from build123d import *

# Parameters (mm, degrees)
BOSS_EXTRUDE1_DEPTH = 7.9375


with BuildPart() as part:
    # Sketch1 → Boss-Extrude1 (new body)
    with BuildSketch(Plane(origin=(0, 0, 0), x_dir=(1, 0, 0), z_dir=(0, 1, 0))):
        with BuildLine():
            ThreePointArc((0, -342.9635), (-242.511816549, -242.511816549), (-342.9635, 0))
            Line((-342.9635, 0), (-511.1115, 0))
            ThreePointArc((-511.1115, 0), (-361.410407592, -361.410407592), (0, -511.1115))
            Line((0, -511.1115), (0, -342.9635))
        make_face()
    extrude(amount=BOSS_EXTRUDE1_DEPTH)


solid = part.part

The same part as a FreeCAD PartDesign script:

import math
import FreeCAD as App
import Part
import Sketcher

V = App.Vector
Q = App.Units.Quantity

doc = App.newDocument("Part")
body = doc.addObject("PartDesign::Body", "Body")

# Sketch on XZ plane
sketch1 = body.newObject("Sketcher::SketchObject", "Sketch")
sketch1.AttachmentSupport = (doc.getObject("XZ_Plane"), [""])
sketch1.MapMode = "FlatFace"
sketch1.addGeometry([
    Part.ArcOfCircle(Part.Circle(V(0, 0, 0), V(0, 0, 1), 343), math.radians(90), math.radians(180)),
    Part.LineSegment(V(-343, 0, 0), V(-511, 0, 0)),
    Part.ArcOfCircle(Part.Circle(V(0, 0, 0), V(0, 0, 1), 511), math.radians(90), math.radians(180)),
    Part.LineSegment(V(0, 511, 0), V(0, 343, 0)),
], False)
sketch1.addConstraint([
    Sketcher.Constraint("Coincident", 0, 2, 1, 1),
    Sketcher.Constraint("Coincident", 1, 2, 2, 2),
    Sketcher.Constraint("Coincident", 2, 1, 3, 1),
    Sketcher.Constraint("Coincident", 3, 2, 0, 1),
    Sketcher.Constraint("Horizontal", 1),
    Sketcher.Constraint("Vertical", 3),
    Sketcher.Constraint("Coincident", 0, 3, -1, 1),
    Sketcher.Constraint("Coincident", 2, 3, -1, 1),
    Sketcher.Constraint("PointOnObject", 0, 2, -1),
    Sketcher.Constraint("PointOnObject", 3, 2, -2),
    Sketcher.Constraint("DistanceX", 1, 2, 1, 1, Q("6.62 in")),
    Sketcher.Constraint("Radius", 0, Q("13.5025 in")),
])
pad1 = body.newObject("PartDesign::Pad", "Pad")
pad1.Profile = sketch1
pad1.Length = Q("0.3125 in")
pad1.Reversed = True

doc.recompute()
